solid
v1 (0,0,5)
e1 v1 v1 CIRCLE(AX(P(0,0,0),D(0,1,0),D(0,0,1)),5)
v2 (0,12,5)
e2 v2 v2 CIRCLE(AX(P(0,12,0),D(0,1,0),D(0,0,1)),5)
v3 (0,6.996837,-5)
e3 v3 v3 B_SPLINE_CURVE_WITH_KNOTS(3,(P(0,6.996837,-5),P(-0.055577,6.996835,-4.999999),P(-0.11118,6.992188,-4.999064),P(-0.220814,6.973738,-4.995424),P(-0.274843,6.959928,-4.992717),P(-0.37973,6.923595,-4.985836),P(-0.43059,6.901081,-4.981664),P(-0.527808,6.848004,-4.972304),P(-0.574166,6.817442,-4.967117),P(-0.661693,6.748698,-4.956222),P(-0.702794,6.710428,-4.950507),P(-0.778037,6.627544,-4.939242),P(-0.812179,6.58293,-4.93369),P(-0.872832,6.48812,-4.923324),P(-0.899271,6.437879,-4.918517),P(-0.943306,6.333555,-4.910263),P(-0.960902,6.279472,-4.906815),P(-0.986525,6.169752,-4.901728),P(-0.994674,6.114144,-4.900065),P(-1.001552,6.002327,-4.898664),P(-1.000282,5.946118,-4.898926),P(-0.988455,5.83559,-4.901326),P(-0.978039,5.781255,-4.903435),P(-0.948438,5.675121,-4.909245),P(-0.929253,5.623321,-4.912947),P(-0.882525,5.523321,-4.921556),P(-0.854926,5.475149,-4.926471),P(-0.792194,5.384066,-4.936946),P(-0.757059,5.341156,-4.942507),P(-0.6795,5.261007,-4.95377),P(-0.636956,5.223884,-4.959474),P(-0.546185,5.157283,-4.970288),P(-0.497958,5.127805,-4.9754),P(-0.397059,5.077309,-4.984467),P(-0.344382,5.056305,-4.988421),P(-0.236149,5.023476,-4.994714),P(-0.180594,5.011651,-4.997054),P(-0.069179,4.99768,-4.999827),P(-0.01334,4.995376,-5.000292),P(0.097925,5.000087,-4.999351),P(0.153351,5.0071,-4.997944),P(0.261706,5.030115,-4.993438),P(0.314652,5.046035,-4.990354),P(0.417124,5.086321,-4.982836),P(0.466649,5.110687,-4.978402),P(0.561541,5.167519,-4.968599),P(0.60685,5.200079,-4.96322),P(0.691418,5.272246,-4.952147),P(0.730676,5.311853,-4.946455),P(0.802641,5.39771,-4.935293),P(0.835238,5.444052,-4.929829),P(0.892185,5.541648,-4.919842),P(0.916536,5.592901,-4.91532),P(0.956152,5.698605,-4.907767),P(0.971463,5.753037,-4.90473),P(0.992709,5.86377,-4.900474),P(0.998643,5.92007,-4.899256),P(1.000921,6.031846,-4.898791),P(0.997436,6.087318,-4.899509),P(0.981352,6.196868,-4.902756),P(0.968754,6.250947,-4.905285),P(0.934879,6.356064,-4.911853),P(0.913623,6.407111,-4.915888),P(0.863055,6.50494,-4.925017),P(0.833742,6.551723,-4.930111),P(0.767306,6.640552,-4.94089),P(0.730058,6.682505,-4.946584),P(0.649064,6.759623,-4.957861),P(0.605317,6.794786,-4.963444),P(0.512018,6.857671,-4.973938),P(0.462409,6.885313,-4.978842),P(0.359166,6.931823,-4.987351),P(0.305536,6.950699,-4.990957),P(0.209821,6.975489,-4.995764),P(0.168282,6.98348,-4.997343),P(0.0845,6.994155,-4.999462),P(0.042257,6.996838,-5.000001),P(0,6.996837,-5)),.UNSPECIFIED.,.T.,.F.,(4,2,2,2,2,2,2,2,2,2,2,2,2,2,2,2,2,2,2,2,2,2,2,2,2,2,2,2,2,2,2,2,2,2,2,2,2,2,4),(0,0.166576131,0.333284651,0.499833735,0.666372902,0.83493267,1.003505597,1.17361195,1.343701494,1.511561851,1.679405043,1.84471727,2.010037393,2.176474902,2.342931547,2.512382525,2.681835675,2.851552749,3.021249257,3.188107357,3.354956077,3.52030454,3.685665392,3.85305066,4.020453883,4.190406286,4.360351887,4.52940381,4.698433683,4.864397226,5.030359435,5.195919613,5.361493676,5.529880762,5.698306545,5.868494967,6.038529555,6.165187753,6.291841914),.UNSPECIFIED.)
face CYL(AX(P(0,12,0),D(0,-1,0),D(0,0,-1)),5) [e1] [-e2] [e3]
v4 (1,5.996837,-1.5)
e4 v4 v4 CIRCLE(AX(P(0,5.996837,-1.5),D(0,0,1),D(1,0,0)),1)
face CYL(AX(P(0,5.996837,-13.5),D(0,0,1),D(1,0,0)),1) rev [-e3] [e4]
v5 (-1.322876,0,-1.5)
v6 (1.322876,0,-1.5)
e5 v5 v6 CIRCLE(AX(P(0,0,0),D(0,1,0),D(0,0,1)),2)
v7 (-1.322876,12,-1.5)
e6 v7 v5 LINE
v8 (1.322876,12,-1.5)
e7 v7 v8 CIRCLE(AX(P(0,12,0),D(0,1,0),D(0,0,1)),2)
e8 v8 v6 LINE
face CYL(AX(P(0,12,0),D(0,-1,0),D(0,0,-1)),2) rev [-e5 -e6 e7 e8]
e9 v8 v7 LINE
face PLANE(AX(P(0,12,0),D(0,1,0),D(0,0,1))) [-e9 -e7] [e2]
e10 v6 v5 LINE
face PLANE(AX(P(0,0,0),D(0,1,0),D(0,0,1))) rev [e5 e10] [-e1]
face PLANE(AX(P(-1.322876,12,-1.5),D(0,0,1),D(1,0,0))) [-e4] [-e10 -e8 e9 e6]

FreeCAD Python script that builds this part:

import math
import FreeCAD as App
import Part
import Sketcher
from FreeCAD import Vector

doc = App.newDocument("Part")
body = doc.addObject("PartDesign::Body", "Body")

sketch1 = doc.addObject("Sketcher::SketchObject", "Sketch")
body.addObject(sketch1)
sketch1.AttachmentSupport = (doc.XZ_Plane, [""])
sketch1.MapMode = "FlatFace"
sketch1.addGeometry([
    Part.Circle(Vector(0, 0, 0), Vector(0, 0, 1), 5),
    Part.ArcOfCircle(Part.Circle(Vector(0, 0, 0), Vector(0, 0, 1), 2), math.radians(-48.590378), math.radians(228.590378)),
    Part.LineSegment(Vector(-1.322876, -1.5, 0), Vector(1.322876, -1.5, 0)),
], False)
sketch1.addConstraint([
    Sketcher.Constraint("Coincident", 1, 1, 2, 2),
    Sketcher.Constraint("Coincident", 2, 1, 1, 2),
    Sketcher.Constraint("Horizontal", 2),
    Sketcher.Constraint("Coincident", 0, 3, -1, 1),
    Sketcher.Constraint("Coincident", 1, 3, -1, 1),
    Sketcher.Constraint("Diameter", 0, 10.0),
    Sketcher.Constraint("Radius", 1, 2.0),
    Sketcher.Constraint("DistanceY", 1, 1, -1, 1, 1.5),
])
pad1 = doc.addObject("PartDesign::Pad", "Pad")
body.addObject(pad1)
pad1.Profile = sketch1
pad1.Length = 12
pad1.Reversed = True

sketch2 = doc.addObject("Sketcher::SketchObject", "Sketch001")
body.addObject(sketch2)
sketch2.AttachmentSupport = (doc.XY_Plane, [""])
sketch2.MapMode = "FlatFace"
sketch2.AttachmentOffset = App.Placement(Vector(0, 0, -1.5), App.Rotation())
sketch2.addGeometry(Part.Circle(Vector(0, 5.996837, 0), Vector(0, 0, 1), 1), False)
sketch2.addConstraint([
    Sketcher.Constraint("PointOnObject", 0, 3, -2),
    Sketcher.Constraint("Diameter", 0, 2.0),
    Sketcher.Constraint("DistanceY", -1, 1, 0, 3, 5.996837),
])
pocket1 = doc.addObject("PartDesign::Pocket", "Pocket")
body.addObject(pocket1)
pocket1.Profile = sketch2
pocket1.Length = 12

doc.recompute()
